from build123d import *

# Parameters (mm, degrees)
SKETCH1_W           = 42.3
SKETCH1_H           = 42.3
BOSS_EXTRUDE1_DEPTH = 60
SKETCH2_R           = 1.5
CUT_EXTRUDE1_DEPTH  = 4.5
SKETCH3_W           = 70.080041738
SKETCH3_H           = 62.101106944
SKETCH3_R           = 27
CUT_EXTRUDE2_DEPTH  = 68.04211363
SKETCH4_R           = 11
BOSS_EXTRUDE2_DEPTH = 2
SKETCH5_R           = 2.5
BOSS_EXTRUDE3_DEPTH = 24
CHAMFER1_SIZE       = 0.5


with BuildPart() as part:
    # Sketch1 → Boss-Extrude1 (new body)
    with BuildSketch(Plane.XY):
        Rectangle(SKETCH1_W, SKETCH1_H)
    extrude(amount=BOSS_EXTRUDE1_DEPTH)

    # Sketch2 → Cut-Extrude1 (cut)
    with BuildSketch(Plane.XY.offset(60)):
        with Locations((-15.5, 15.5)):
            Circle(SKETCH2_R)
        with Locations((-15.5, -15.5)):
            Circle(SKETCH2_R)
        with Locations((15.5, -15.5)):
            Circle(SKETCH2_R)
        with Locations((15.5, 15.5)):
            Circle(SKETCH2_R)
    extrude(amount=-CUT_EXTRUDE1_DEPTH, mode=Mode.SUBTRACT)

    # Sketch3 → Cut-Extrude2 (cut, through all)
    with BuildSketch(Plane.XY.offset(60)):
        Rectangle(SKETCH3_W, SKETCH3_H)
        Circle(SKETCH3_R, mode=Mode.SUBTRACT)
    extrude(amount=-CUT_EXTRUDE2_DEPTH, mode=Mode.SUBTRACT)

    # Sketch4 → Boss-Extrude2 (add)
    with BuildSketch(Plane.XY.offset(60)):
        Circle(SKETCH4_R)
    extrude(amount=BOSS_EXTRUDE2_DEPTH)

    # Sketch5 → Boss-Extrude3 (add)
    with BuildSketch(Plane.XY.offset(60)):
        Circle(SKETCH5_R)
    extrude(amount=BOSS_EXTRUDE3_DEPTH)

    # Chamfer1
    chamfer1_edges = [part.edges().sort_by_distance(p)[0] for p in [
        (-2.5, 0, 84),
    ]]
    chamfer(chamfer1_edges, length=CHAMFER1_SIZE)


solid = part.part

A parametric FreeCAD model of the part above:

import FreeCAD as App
import Part
import Sketcher
Q = App.Units.Quantity


def edges_at(feature, points):
    """Names of the edges that pass closest to the given points."""
    edges = feature.Shape.Edges
    near = lambda p: min(range(len(edges)), key=lambda i: edges[i].distToShape(Part.Vertex(*p))[0])
    return sorted({f"Edge{near(p) + 1}" for p in points})


def add_polygon(sketch, points):
    """Adds a closed chain of lines whose ends are joined by coincident constraints."""
    first, n = sketch.GeometryCount, len(points)
    for a, b in zip(points, points[1:] + points[:1]):
        sketch.addGeometry(Part.LineSegment(App.Vector(*a, 0), App.Vector(*b, 0)), False)
    for i in range(n):
        sketch.addConstraint(Sketcher.Constraint("Coincident", first + i, 2, first + (i + 1) % n, 1))

doc = App.newDocument("Part")
body = doc.addObject("PartDesign::Body", "Body")

sketch1 = body.newObject("Sketcher::SketchObject", "Sketch")
sketch1.AttachmentSupport = (doc.getObject("XY_Plane"), [""])
sketch1.MapMode = "FlatFace"
add_polygon(sketch1, [(-21.15, 21.15), (-21.15, -21.15), (21.15, -21.15), (21.15, 21.15)])
sketch1.addConstraint([
    Sketcher.Constraint("Vertical", 0),
    Sketcher.Constraint("Horizontal", 1),
    Sketcher.Constraint("Vertical", 2),
    Sketcher.Constraint("Horizontal", 3),
    Sketcher.Constraint("Symmetric", 0, 2, 2, 2, -1, 1),
    Sketcher.Constraint("Equal", 3, 0),
    Sketcher.Constraint("DistanceX", 1, 1, 1, 2, Q("42.3 mm")),
])
pad1 = body.newObject("PartDesign::Pad", "Pad")
pad1.Profile = sketch1
pad1.Length = 60

sketch2 = body.newObject("Sketcher::SketchObject", "Sketch001")
sketch2.AttachmentSupport = (doc.getObject("XY_Plane"), [""])
sketch2.MapMode = "FlatFace"
sketch2.AttachmentOffset = App.Placement(App.Vector(0, 0, 60), App.Rotation())
sketch2.addGeometry([
    Part.Circle(App.Vector(-15.5, 15.5, 0), App.Vector(0, 0, 1), 1.5),
    Part.Circle(App.Vector(-15.5, -15.5, 0), App.Vector(0, 0, 1), 1.5),
    Part.Circle(App.Vector(15.5, -15.5, 0), App.Vector(0, 0, 1), 1.5),
    Part.Circle(App.Vector(15.5, 15.5, 0), App.Vector(0, 0, 1), 1.5),
], False)
sketch2.addConstraint([
    Sketcher.Constraint("Equal", 0, 1),
    Sketcher.Constraint("Equal", 1, 2),
    Sketcher.Constraint("Equal", 2, 3),
    Sketcher.Constraint("Symmetric", 0, 3, 2, 3, -1, 1),
    Sketcher.Constraint("Symmetric", 1, 3, 3, 3, -1, 1),
    Sketcher.Constraint("Symmetric", 1, 3, 2, 3, -2),
    Sketcher.Constraint("Diameter", 0, Q("3 mm")),
    Sketcher.Constraint("DistanceY", 1, 3, 0, 3, Q("31 mm")),
    Sketcher.Constraint("DistanceX", 1, 3, 2, 3, Q("31 mm")),
])
pocket1 = body.newObject("PartDesign::Pocket", "Pocket")
pocket1.Profile = sketch2
pocket1.Length = 4.5

sketch3 = body.newObject("Sketcher::SketchObject", "Sketch002")
sketch3.AttachmentSupport = (doc.getObject("XY_Plane"), [""])
sketch3.MapMode = "FlatFace"
sketch3.AttachmentOffset = App.Placement(App.Vector(0, 0, 60), App.Rotation())
add_polygon(sketch3, [(-35.040021, 31.050553), (-35.040021, -31.050553), (35.040021, -31.050553), (35.040021, 31.050553)])
sketch3.addGeometry(Part.Circle(App.Vector(0, 0, 0), App.Vector(0, 0, 1), 27), False)
sketch3.addConstraint([
    Sketcher.Constraint("Vertical", 0),
    Sketcher.Constraint("Horizontal", 1),
    Sketcher.Constraint("Vertical", 2),
    Sketcher.Constraint("Horizontal", 3),
    Sketcher.Constraint("Coincident", 4, 3, -1, 1),
    Sketcher.Constraint("Symmetric", 0, 2, 2, 2, -1, 1),
    Sketcher.Constraint("Diameter", 4, Q("54 mm")),
    Sketcher.Constraint("DistanceX", 1, 1, 1, 2, Q("70.080042 mm")),
    Sketcher.Constraint("DistanceY", 0, 2, 0, 1, Q("62.101107 mm")),
])
pocket2 = body.newObject("PartDesign::Pocket", "Pocket001")
pocket2.Profile = sketch3
pocket2.Type = "ThroughAll"

sketch4 = body.newObject("Sketcher::SketchObject", "Sketch003")
sketch4.AttachmentSupport = (doc.getObject("XY_Plane"), [""])
sketch4.MapMode = "FlatFace"
sketch4.AttachmentOffset = App.Placement(App.Vector(0, 0, 60), App.Rotation())
sketch4.addGeometry(Part.Circle(App.Vector(0, 0, 0), App.Vector(0, 0, 1), 11), False)
sketch4.addConstraint([
    Sketcher.Constraint("Coincident", 0, 3, -1, 1),
    Sketcher.Constraint("Diameter", 0, Q("22 mm")),
])
pad2 = body.newObject("PartDesign::Pad", "Pad001")
pad2.Profile = sketch4
pad2.Length = 2

sketch5 = body.newObject("Sketcher::SketchObject", "Sketch004")
sketch5.AttachmentSupport = (doc.getObject("XY_Plane"), [""])
sketch5.MapMode = "FlatFace"
sketch5.AttachmentOffset = App.Placement(App.Vector(0, 0, 60), App.Rotation())
sketch5.addGeometry(Part.Circle(App.Vector(0, 0, 0), App.Vector(0, 0, 1), 2.5), False)
sketch5.addConstraint([
    Sketcher.Constraint("Coincident", 0, 3, -1, 1),
    Sketcher.Constraint("Diameter", 0, Q("5 mm")),
])
pad3 = body.newObject("PartDesign::Pad", "Pad002")
pad3.Profile = sketch5
pad3.Length = 24
doc.recompute()

chamfer = body.newObject("PartDesign::Chamfer", "Chamfer")
chamfer.Base = (pad3, edges_at(pad3, [(-2.5, 0, 84)]))
chamfer.Size = 0.5

doc.recompute()
